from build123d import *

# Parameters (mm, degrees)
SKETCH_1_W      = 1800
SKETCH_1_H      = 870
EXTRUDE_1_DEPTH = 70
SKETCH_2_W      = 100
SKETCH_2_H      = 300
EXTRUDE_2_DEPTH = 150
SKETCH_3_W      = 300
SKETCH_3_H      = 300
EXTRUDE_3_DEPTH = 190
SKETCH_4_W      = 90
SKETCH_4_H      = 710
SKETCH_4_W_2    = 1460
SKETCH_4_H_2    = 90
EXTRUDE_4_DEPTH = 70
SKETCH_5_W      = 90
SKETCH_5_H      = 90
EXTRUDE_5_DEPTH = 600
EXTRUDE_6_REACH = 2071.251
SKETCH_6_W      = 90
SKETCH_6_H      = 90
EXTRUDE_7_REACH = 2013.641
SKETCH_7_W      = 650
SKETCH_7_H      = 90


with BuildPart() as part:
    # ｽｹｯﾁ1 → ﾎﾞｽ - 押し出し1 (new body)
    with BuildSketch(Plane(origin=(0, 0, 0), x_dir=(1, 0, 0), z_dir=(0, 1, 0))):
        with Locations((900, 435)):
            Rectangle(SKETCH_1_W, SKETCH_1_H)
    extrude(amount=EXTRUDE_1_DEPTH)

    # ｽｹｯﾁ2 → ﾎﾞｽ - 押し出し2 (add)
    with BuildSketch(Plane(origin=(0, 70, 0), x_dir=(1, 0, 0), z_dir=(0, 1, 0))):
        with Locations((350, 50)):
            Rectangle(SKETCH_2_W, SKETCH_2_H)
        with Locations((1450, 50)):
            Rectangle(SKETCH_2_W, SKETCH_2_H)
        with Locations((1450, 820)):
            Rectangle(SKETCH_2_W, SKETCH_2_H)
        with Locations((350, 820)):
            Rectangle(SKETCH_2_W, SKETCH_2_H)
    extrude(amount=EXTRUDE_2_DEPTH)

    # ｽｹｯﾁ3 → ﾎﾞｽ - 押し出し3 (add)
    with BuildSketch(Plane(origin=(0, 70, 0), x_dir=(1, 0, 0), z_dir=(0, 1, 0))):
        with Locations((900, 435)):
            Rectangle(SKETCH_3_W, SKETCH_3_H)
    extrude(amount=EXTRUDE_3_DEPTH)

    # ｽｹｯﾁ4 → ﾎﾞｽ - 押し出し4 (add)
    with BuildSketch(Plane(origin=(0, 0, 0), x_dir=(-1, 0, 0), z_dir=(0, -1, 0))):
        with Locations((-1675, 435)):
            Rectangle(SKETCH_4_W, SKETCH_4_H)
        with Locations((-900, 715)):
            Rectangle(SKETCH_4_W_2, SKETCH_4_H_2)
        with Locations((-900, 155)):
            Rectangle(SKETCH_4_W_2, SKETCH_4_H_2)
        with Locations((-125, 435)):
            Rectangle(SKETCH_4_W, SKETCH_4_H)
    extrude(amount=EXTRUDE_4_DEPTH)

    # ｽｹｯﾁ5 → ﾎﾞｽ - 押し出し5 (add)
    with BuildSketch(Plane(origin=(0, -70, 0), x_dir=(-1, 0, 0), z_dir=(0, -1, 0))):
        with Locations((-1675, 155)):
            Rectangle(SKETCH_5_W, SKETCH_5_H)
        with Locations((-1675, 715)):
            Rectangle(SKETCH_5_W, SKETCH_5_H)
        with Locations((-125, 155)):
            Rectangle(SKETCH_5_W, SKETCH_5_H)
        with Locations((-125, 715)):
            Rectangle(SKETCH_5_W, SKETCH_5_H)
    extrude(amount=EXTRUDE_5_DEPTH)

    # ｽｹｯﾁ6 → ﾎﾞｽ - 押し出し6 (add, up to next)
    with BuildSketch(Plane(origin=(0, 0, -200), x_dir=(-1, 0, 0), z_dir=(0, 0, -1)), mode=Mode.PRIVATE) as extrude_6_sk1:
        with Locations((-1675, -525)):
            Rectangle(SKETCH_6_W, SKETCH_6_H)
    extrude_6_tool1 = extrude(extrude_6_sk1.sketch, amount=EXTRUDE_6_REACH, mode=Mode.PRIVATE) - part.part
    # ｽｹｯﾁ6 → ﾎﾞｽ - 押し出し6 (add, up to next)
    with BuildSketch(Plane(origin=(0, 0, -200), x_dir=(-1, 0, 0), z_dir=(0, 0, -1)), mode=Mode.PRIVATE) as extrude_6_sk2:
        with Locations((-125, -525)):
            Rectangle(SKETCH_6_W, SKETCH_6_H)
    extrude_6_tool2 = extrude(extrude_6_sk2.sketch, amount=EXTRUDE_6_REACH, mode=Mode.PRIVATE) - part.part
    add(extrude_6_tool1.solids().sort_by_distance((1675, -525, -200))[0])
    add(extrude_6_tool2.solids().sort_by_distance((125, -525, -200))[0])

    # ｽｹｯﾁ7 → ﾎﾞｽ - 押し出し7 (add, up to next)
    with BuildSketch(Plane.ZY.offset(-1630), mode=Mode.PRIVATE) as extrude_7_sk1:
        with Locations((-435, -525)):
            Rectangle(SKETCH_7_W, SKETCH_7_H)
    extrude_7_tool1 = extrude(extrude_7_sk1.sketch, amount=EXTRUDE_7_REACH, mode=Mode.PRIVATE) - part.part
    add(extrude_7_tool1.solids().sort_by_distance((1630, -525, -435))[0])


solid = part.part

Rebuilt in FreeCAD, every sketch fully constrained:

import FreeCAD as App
import Part
import Sketcher
from FreeCAD import Vector


def add_polygon(sketch, points):
    """Adds a closed chain of lines whose ends are joined by coincident constraints."""
    first, n = sketch.GeometryCount, len(points)
    for a, b in zip(points, points[1:] + points[:1]):
        sketch.addGeometry(Part.LineSegment(App.Vector(*a, 0), App.Vector(*b, 0)), False)
    for i in range(n):
        sketch.addConstraint(Sketcher.Constraint("Coincident", first + i, 2, first + (i + 1) % n, 1))

doc = App.newDocument("Part")
body = doc.addObject("PartDesign::Body", "Body")

# Sketch on XZ plane
sketch1 = doc.addObject("Sketcher::SketchObject", "Sketch")
body.addObject(sketch1)
sketch1.AttachmentSupport = (doc.XZ_Plane, [""])
sketch1.MapMode = "FlatFace"
add_polygon(sketch1, [(0, -870), (0, 0), (1800, 0), (1800, -870)])  # lines 0-3
sketch1.addConstraint([
    Sketcher.Constraint("Vertical", 0),
    Sketcher.Constraint("Horizontal", 1),
    Sketcher.Constraint("Vertical", 2),
    Sketcher.Constraint("Horizontal", 3),
    Sketcher.Constraint("Coincident", 0, 2, -1, 1),
    Sketcher.Constraint("DistanceX", 1, 1, 1, 2, 1800.0),
    Sketcher.Constraint("DistanceY", 0, 1, 0, 2, 870.0),
])
pad1 = doc.addObject("PartDesign::Pad", "Pad")
body.addObject(pad1)
pad1.Profile = sketch1
pad1.Length = 70
pad1.Reversed = True

# Sketch on XZ plane
sketch2 = doc.addObject("Sketcher::SketchObject", "Sketch001")
body.addObject(sketch2)
sketch2.AttachmentSupport = (doc.XZ_Plane, [""])
sketch2.MapMode = "FlatFace"
sketch2.AttachmentOffset = App.Placement(Vector(0, 0, -70), App.Rotation())
add_polygon(sketch2, [(300, -200), (300, 100), (400, 100), (400, -200)])  # lines 0-3
add_polygon(sketch2, [(1400, -200), (1400, 100), (1500, 100), (1500, -200)])  # lines 4-7
add_polygon(sketch2, [(1400, -970), (1400, -670), (1500, -670), (1500, -970)])  # lines 8-11
add_polygon(sketch2, [(300, -970), (300, -670), (400, -670), (400, -970)])  # lines 12-15
sketch2.addConstraint([
    Sketcher.Constraint("Vertical", 0),
    Sketcher.Constraint("Horizontal", 1),
    Sketcher.Constraint("Vertical", 2),
    Sketcher.Constraint("Horizontal", 3),
    Sketcher.Constraint("Vertical", 4),
    Sketcher.Constraint("Horizontal", 5),
    Sketcher.Constraint("Vertical", 6),
    Sketcher.Constraint("Horizontal", 7),
    Sketcher.Constraint("Vertical", 8),
    Sketcher.Constraint("Horizontal", 9),
    Sketcher.Constraint("Vertical", 10),
    Sketcher.Constraint("Horizontal", 11),
    Sketcher.Constraint("Vertical", 12),
    Sketcher.Constraint("Horizontal", 13),
    Sketcher.Constraint("Vertical", 14),
    Sketcher.Constraint("Horizontal", 15),
    Sketcher.Constraint("Horizontal", 1, 2, 4, 2),
    Sketcher.Constraint("Horizontal", 3, 2, 6, 2),
    Sketcher.Constraint("Horizontal", 9, 2, 12, 2),
    Sketcher.Constraint("Horizontal", 11, 2, 14, 2),
    Sketcher.Constraint("Vertical", 7, 2, 8, 2),
    Sketcher.Constraint("Vertical", 6, 2, 9, 2),
    Sketcher.Constraint("Vertical", 3, 2, 12, 2),
    Sketcher.Constraint("Vertical", 2, 2, 13, 2),
    Sketcher.Constraint("Equal", 3, 5),
    Sketcher.Constraint("Equal", 6, 8),
    Sketcher.Constraint("DistanceX", 1, 1, 1, 2, 100.0),
    Sketcher.Constraint("DistanceY", 0, 1, 0, 2, 300.0),
    Sketcher.Constraint("DistanceX", -1, 1, 0, 2, 300.0),
    Sketcher.Constraint("DistanceY", -1, 1, 0, 2, 100.0),
    Sketcher.Constraint("DistanceX", -1, 1, 4, 2, 1400.0),
    Sketcher.Constraint("DistanceY", 8, 2, -1, 1, 670.0),
])
pad2 = doc.addObject("PartDesign::Pad", "Pad001")
body.addObject(pad2)
pad2.Profile = sketch2
pad2.Length = 150
pad2.Reversed = True

# Sketch on XZ plane
sketch3 = doc.addObject("Sketcher::SketchObject", "Sketch002")
body.addObject(sketch3)
sketch3.AttachmentSupport = (doc.XZ_Plane, [""])
sketch3.MapMode = "FlatFace"
sketch3.AttachmentOffset = App.Placement(Vector(0, 0, -70), App.Rotation())
add_polygon(sketch3, [(750, -585), (750, -285), (1050, -285), (1050, -585)])  # lines 0-3
sketch3.addConstraint([
    Sketcher.Constraint("Vertical", 0),
    Sketcher.Constraint("Horizontal", 1),
    Sketcher.Constraint("Vertical", 2),
    Sketcher.Constraint("Horizontal", 3),
    Sketcher.Constraint("Equal", 3, 0),
    Sketcher.Constraint("DistanceX", 1, 1, 1, 2, 300.0),
    Sketcher.Constraint("DistanceX", -1, 1, 0, 2, 750.0),
    Sketcher.Constraint("DistanceY", 0, 2, -1, 1, 285.0),
])
pad3 = doc.addObject("PartDesign::Pad", "Pad002")
body.addObject(pad3)
pad3.Profile = sketch3
pad3.Length = 190
pad3.Reversed = True

# Sketch on XZ plane
sketch4 = doc.addObject("Sketcher::SketchObject", "Sketch003")
body.addObject(sketch4)
sketch4.AttachmentSupport = (doc.XZ_Plane, [""])
sketch4.MapMode = "FlatFace"
add_polygon(sketch4, [(1720, -790), (1720, -80), (1630, -80), (1630, -110), (170, -110), (170, -80), (80, -80), (80, -790), (170, -790), (170, -760), (1630, -760), (1630, -790)])  # lines 0-11
add_polygon(sketch4, [(170, -200), (1630, -200), (1630, -670), (170, -670)])  # lines 12-15
sketch4.addConstraint([
    Sketcher.Constraint("Vertical", 0),
    Sketcher.Constraint("Horizontal", 1),
    Sketcher.Constraint("Vertical", 2),
    Sketcher.Constraint("Horizontal", 3),
    Sketcher.Constraint("Vertical", 4),
    Sketcher.Constraint("Horizontal", 5),
    Sketcher.Constraint("Vertical", 6),
    Sketcher.Constraint("Horizontal", 7),
    Sketcher.Constraint("Vertical", 8),
    Sketcher.Constraint("Horizontal", 9),
    Sketcher.Constraint("Vertical", 10),
    Sketcher.Constraint("Horizontal", 11),
    Sketcher.Constraint("Horizontal", 12),
    Sketcher.Constraint("Vertical", 13),
    Sketcher.Constraint("Horizontal", 14),
    Sketcher.Constraint("Vertical", 15),
    Sketcher.Constraint("Horizontal", 1, 2, 4, 2),
    Sketcher.Constraint("Horizontal", 7, 2, 10, 2),
    Sketcher.Constraint("Vertical", 4, 2, 7, 2),
    Sketcher.Constraint("Vertical", 2, 2, 9, 2),
    Sketcher.Constraint("Vertical", 10, 2, 12, 2),
    Sketcher.Constraint("Vertical", 8, 2, 14, 2),
    Sketcher.Constraint("Equal", 1, 5),
    Sketcher.Constraint("Equal", 4, 8),
    Sketcher.Constraint("DistanceX", 1, 2, 1, 1, 90.0),
    Sketcher.Constraint("DistanceX", 3, 2, 3, 1, 1460.0),
    Sketcher.Constraint("DistanceY", 0, 1, 0, 2, 710.0),
    Sketcher.Constraint("DistanceY", 2, 2, 2, 1, 30.0),
    Sketcher.Constraint("DistanceY", 13, 2, 13, 1, 470.0),
    Sketcher.Constraint("DistanceX", -1, 1, 0, 2, 1720.0),
    Sketcher.Constraint("DistanceY", 0, 2, -1, 1, 80.0),
    Sketcher.Constraint("DistanceY", 12, 2, -1, 1, 200.0),
])
pad4 = doc.addObject("PartDesign::Pad", "Pad003")
body.addObject(pad4)
pad4.Profile = sketch4
pad4.Length = 70

# Sketch on XZ plane
sketch5 = doc.addObject("Sketcher::SketchObject", "Sketch004")
body.addObject(sketch5)
sketch5.AttachmentSupport = (doc.XZ_Plane, [""])
sketch5.MapMode = "FlatFace"
sketch5.AttachmentOffset = App.Placement(Vector(0, 0, 70), App.Rotation())
add_polygon(sketch5, [(1720, -200), (1720, -110), (1630, -110), (1630, -200)])  # lines 0-3
add_polygon(sketch5, [(1720, -760), (1720, -670), (1630, -670), (1630, -760)])  # lines 4-7
add_polygon(sketch5, [(170, -200), (170, -110), (80, -110), (80, -200)])  # lines 8-11
add_polygon(sketch5, [(170, -760), (170, -670), (80, -670), (80, -760)])  # lines 12-15
sketch5.addConstraint([
    Sketcher.Constraint("Vertical", 0),
    Sketcher.Constraint("Horizontal", 1),
    Sketcher.Constraint("Vertical", 2),
    Sketcher.Constraint("Horizontal", 3),
    Sketcher.Constraint("Vertical", 4),
    Sketcher.Constraint("Horizontal", 5),
    Sketcher.Constraint("Vertical", 6),
    Sketcher.Constraint("Horizontal", 7),
    Sketcher.Constraint("Vertical", 8),
    Sketcher.Constraint("Horizontal", 9),
    Sketcher.Constraint("Vertical", 10),
    Sketcher.Constraint("Horizontal", 11),
    Sketcher.Constraint("Vertical", 12),
    Sketcher.Constraint("Horizontal", 13),
    Sketcher.Constraint("Vertical", 14),
    Sketcher.Constraint("Horizontal", 15),
    Sketcher.Constraint("Horizontal", 1, 2, 8, 2),
    Sketcher.Constraint("Horizontal", 3, 2, 10, 2),
    Sketcher.Constraint("Horizontal", 5, 2, 12, 2),
    Sketcher.Constraint("Horizontal", 7, 2, 14, 2),
    Sketcher.Constraint("Vertical", 3, 2, 4, 2),
    Sketcher.Constraint("Vertical", 2, 2, 5, 2),
    Sketcher.Constraint("Vertical", 11, 2, 12, 2),
    Sketcher.Constraint("Vertical", 10, 2, 13, 2),
    Sketcher.Constraint("Equal", 7, 9),
    Sketcher.Constraint("Equal", 15, 0),
    Sketcher.Constraint("Equal", 2, 4),
    Sketcher.Constraint("DistanceX", 1, 2, 1, 1, 90.0),
    Sketcher.Constraint("DistanceX", -1, 1, 0, 2, 1720.0),
    Sketcher.Constraint("DistanceY", 0, 2, -1, 1, 110.0),
    Sketcher.Constraint("DistanceY", 4, 2, -1, 1, 670.0),
    Sketcher.Constraint("DistanceX", -1, 1, 8, 2, 170.0),
])
pad5 = doc.addObject("PartDesign::Pad", "Pad004")
body.addObject(pad5)
pad5.Profile = sketch5
pad5.Length = 600

# Sketch on XY plane
sketch6 = doc.addObject("Sketcher::SketchObject", "Sketch005")
body.addObject(sketch6)
sketch6.AttachmentSupport = (doc.XY_Plane, [""])
sketch6.MapMode = "FlatFace"
sketch6.AttachmentOffset = App.Placement(Vector(0, 0, -200), App.Rotation())
add_polygon(sketch6, [(1720, -480), (1720, -570), (1630, -570), (1630, -480)])  # lines 0-3
sketch6.addConstraint([
    Sketcher.Constraint("Vertical", 0),
    Sketcher.Constraint("Horizontal", 1),
    Sketcher.Constraint("Vertical", 2),
    Sketcher.Constraint("Horizontal", 3),
    Sketcher.Constraint("Equal", 3, 0),
    Sketcher.Constraint("DistanceX", 1, 2, 1, 1, 90.0),
    Sketcher.Constraint("DistanceX", -1, 1, 0, 2, 1720.0),
    Sketcher.Constraint("DistanceY", 0, 2, -1, 1, 570.0),
])
pad6 = doc.addObject("PartDesign::Pad", "Pad005")
body.addObject(pad6)
pad6.Profile = sketch6
pad6.Type = "UpToFirst"
pad6.Reversed = True

# Sketch on XY plane
sketch7 = doc.addObject("Sketcher::SketchObject", "Sketch006")
body.addObject(sketch7)
sketch7.AttachmentSupport = (doc.XY_Plane, [""])
sketch7.MapMode = "FlatFace"
sketch7.AttachmentOffset = App.Placement(Vector(0, 0, -200), App.Rotation())
add_polygon(sketch7, [(170, -480), (170, -570), (80, -570), (80, -480)])  # lines 0-3
sketch7.addConstraint([
    Sketcher.Constraint("Vertical", 0),
    Sketcher.Constraint("Horizontal", 1),
    Sketcher.Constraint("Vertical", 2),
    Sketcher.Constraint("Horizontal", 3),
    Sketcher.Constraint("Equal", 3, 0),
    Sketcher.Constraint("DistanceX", 1, 2, 1, 1, 90.0),
    Sketcher.Constraint("DistanceX", -1, 1, 0, 2, 170.0),
    Sketcher.Constraint("DistanceY", 0, 2, -1, 1, 570.0),
])
pad7 = doc.addObject("PartDesign::Pad", "Pad006")
body.addObject(pad7)
pad7.Profile = sketch7
pad7.Type = "UpToFirst"
pad7.Reversed = True

# Sketch on YZ plane
sketch8 = doc.addObject("Sketcher::SketchObject", "Sketch007")
body.addObject(sketch8)
sketch8.AttachmentSupport = (doc.YZ_Plane, [""])
sketch8.MapMode = "FlatFace"
sketch8.AttachmentOffset = App.Placement(Vector(0, 0, 1630), App.Rotation())
add_polygon(sketch8, [(-480, -760), (-570, -760), (-570, -110), (-480, -110)])  # lines 0-3
sketch8.addConstraint([
    Sketcher.Constraint("Horizontal", 0),
    Sketcher.Constraint("Vertical", 1),
    Sketcher.Constraint("Horizontal", 2),
    Sketcher.Constraint("Vertical", 3),
    Sketcher.Constraint("DistanceX", 0, 2, 0, 1, 90.0),
    Sketcher.Constraint("DistanceY", 1, 1, 1, 2, 650.0),
    Sketcher.Constraint("DistanceX", 0, 2, -1, 1, 570.0),
    Sketcher.Constraint("DistanceY", 0, 2, -1, 1, 760.0),
])
pad8 = doc.addObject("PartDesign::Pad", "Pad007")
body.addObject(pad8)
pad8.Profile = sketch8
pad8.Type = "UpToFirst"
pad8.Reversed = True

doc.recompute()
